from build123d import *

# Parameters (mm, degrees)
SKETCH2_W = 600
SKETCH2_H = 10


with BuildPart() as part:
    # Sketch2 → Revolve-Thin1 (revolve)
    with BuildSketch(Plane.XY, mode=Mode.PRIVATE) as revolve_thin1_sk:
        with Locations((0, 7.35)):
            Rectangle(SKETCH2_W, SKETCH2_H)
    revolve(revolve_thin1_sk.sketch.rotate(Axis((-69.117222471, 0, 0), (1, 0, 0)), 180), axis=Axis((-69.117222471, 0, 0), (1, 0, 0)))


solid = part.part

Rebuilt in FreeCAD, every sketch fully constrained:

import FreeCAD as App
import Part
import Sketcher
from FreeCAD import Vector
Q = App.Units.Quantity

doc = App.newDocument("Part")
body = doc.addObject("PartDesign::Body", "Body")

sketch1 = doc.addObject("Sketcher::SketchObject", "Sketch")
body.addObject(sketch1)
sketch1.AttachmentSupport = (doc.XY_Plane, [""])
sketch1.MapMode = "FlatFace"
sketch1.addGeometry(Part.LineSegment(Vector(-300, 12, 0), Vector(-300, 2, 0)), False)
sketch1.addGeometry(Part.LineSegment(Vector(-300, 2, 0), Vector(300, 2, 0)), False)
sketch1.addGeometry(Part.LineSegment(Vector(300, 2, 0), Vector(300, 12, 0)), False)
sketch1.addGeometry(Part.LineSegment(Vector(300, 12, 0), Vector(-300, 12, 0)), False)
sketch1.addConstraint(Sketcher.Constraint("Coincident", 0, 2, 1, 1))
sketch1.addConstraint(Sketcher.Constraint("Coincident", 1, 2, 2, 1))
sketch1.addConstraint(Sketcher.Constraint("Coincident", 2, 2, 3, 1))
sketch1.addConstraint(Sketcher.Constraint("Coincident", 3, 2, 0, 1))
sketch1.addConstraint(Sketcher.Constraint("Vertical", 0))
sketch1.addConstraint(Sketcher.Constraint("Horizontal", 1))
sketch1.addConstraint(Sketcher.Constraint("Vertical", 2))
sketch1.addConstraint(Sketcher.Constraint("Horizontal", 3))
sketch1.addConstraint(Sketcher.Constraint("DistanceX", 1, 1, 1, 2, Q("600 mm")))
sketch1.addConstraint(Sketcher.Constraint("DistanceY", 0, 2, 0, 1, Q("10 mm")))
sketch1.addConstraint(Sketcher.Constraint("DistanceX", 0, 2, -1, 1, Q("300 mm")))
sketch1.addConstraint(Sketcher.Constraint("DistanceY", -1, 1, 0, 2, Q("2.35 mm")))
revolution = doc.addObject("PartDesign::Revolution", "Revolution")
body.addObject(revolution)
revolution.Profile = sketch1
revolution.ReferenceAxis = (sketch1, ["H_Axis"])
revolution.Angle = 360

doc.recompute()
